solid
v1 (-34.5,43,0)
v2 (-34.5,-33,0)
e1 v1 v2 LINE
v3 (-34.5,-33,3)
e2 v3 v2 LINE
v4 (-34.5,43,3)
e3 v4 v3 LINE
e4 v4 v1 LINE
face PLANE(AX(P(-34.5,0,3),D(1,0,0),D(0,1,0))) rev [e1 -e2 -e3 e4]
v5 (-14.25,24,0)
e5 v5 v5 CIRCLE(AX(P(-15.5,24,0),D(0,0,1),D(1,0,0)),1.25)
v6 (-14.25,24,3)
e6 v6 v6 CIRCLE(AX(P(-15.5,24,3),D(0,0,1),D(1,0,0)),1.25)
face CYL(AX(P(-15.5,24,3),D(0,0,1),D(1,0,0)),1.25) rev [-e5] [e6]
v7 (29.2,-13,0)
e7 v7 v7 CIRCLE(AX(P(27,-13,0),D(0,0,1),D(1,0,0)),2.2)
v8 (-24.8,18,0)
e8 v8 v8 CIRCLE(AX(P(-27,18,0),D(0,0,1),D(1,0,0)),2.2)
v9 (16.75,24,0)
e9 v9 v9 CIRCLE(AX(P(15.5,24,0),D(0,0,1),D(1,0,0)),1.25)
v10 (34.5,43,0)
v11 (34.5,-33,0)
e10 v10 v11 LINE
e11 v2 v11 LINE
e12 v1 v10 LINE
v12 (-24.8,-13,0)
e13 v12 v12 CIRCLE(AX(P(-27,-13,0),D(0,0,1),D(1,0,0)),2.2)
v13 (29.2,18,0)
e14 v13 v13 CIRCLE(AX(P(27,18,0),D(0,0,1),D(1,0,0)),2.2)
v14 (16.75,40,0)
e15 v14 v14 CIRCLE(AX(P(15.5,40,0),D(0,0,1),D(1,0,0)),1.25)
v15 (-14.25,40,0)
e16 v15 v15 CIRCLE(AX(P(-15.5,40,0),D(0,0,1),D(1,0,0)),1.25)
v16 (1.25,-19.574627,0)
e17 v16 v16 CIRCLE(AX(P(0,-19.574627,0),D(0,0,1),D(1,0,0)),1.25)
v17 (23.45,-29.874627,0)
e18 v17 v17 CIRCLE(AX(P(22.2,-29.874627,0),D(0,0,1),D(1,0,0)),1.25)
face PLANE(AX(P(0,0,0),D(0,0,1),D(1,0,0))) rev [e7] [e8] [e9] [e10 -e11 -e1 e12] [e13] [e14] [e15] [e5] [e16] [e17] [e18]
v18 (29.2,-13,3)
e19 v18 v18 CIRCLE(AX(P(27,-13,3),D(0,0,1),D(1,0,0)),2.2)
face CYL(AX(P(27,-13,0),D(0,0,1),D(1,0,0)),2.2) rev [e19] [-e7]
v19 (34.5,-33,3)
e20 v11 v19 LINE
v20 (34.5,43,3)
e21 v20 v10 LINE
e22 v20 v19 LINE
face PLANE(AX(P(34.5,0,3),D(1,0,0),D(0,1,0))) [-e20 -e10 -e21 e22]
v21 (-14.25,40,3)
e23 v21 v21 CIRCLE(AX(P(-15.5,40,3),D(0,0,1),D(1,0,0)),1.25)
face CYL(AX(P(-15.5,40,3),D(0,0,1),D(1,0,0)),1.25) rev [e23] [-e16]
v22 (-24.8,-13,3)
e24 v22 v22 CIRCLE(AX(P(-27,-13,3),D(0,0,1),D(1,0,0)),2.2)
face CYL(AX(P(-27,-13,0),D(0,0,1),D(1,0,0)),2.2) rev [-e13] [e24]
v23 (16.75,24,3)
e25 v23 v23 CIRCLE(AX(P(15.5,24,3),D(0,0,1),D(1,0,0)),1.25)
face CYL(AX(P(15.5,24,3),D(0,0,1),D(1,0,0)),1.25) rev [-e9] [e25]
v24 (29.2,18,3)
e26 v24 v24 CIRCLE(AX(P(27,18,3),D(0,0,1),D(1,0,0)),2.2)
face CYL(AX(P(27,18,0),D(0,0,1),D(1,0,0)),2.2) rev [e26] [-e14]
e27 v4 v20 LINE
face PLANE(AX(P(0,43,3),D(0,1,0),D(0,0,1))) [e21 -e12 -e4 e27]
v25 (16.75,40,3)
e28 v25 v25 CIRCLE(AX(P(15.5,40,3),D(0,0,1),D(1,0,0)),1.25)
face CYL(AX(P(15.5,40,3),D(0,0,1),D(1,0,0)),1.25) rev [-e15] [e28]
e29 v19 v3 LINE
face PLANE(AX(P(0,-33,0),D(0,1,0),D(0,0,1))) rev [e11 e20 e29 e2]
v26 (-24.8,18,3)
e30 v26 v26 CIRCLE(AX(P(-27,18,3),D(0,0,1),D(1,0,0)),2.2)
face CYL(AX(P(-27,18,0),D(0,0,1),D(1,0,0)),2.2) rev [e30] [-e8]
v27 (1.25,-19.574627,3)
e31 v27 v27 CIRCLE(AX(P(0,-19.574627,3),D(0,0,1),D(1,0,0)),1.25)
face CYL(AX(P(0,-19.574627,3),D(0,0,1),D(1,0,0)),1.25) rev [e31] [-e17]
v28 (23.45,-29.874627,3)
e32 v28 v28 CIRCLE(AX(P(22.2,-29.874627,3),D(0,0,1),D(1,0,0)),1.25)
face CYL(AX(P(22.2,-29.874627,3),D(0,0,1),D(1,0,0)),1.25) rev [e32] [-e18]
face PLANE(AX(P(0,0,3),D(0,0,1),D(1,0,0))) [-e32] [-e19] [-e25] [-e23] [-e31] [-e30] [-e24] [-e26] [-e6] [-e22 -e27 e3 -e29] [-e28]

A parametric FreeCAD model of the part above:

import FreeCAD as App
import Part
import Sketcher
from FreeCAD import Vector
Q = App.Units.Quantity

doc = App.newDocument("Part")
params = doc.addObject("Spreadsheet::Sheet", "Params")
for row, (alias, value) in enumerate([
    ("sketch1_width", "69 mm"),
    ("sketch1_height", "86 mm"),
    ("sketch1_width2", "61.5 mm"),
    ("pad1_length", "3 mm"),
    ("sketch2_diameter", "4.4 mm"),
    ("sketch3_diameter", "2.5 mm"),
    ("hole_diameter", "2.5 mm"),
    ("hole_depth", "8.5 mm"),
    ("sketch4_width", "69 mm"),
    ("sketch4_height", "3 mm"),
    ("pocket2_length", "20 mm"),
    ("sketch5_width", "69 mm"),
    ("sketch5_height", "3 mm"),
    ("pad2_length", "10 mm"),
    ("sketch6_diameter", "2.5 mm"),
    ("hole2_diameter", "2.5 mm"),
    ("hole2_depth", "8.5 mm"),
], start=1):
    params.set(f"A{row}", alias)
    params.set(f"B{row}", "=" + value)
    params.setAlias(f"B{row}", alias)

body = doc.addObject("PartDesign::Body", "Body")

sketch1 = body.newObject("Sketcher::SketchObject", "Sketch")
sketch1.AttachmentSupport = (doc.getObject("XY_Plane"), [""])
sketch1.MapMode = "FlatFace"
sketch1.addGeometry(Part.LineSegment(Vector(27, 43, 0), Vector(-34, 43, 0)), False)
sketch1.addGeometry(Part.LineSegment(Vector(-34, 43, 0), Vector(-34, -43, 0)), False)
sketch1.addGeometry(Part.LineSegment(Vector(-34, -43, 0), Vector(34, -43, 0)), False)
sketch1.addGeometry(Part.LineSegment(Vector(34, -43, 0), Vector(34, 43, 0)), False)
sketch1.addGeometry(Part.LineSegment(Vector(34, 43, 0), Vector(27, 43, 0)), False)
sketch1.addConstraint(Sketcher.Constraint("Coincident", 0, 2, 1, 1))
sketch1.addConstraint(Sketcher.Constraint("Coincident", 1, 2, 2, 1))
sketch1.addConstraint(Sketcher.Constraint("Coincident", 2, 2, 3, 1))
sketch1.addConstraint(Sketcher.Constraint("Coincident", 3, 2, 4, 1))
sketch1.addConstraint(Sketcher.Constraint("Coincident", 4, 2, 0, 1))
sketch1.addConstraint(Sketcher.Constraint("Horizontal", 0))
sketch1.addConstraint(Sketcher.Constraint("Vertical", 1))
sketch1.addConstraint(Sketcher.Constraint("Horizontal", 2))
sketch1.addConstraint(Sketcher.Constraint("Vertical", 3))
sketch1.addConstraint(Sketcher.Constraint("Horizontal", 4))
sketch1.addConstraint(Sketcher.Constraint("Symmetric", 0, 2, 2, 2, -1, 1))
sketch1.addConstraint(Sketcher.Constraint("DistanceX", 2, 1, 2, 2, Q("69 mm")))
sketch1.addConstraint(Sketcher.Constraint("DistanceY", 1, 2, 1, 1, Q("86 mm")))
sketch1.addConstraint(Sketcher.Constraint("DistanceX", 0, 2, 0, 1, Q("61.5 mm")))
sketch1.setExpression("Constraints[11]", "Params.sketch1_width")
sketch1.setExpression("Constraints[12]", "Params.sketch1_height")
sketch1.setExpression("Constraints[13]", "Params.sketch1_width2")
pad1 = body.newObject("PartDesign::Pad", "Pad")
pad1.Profile = sketch1
pad1.setExpression("Length", "Params.pad1_length")

sketch2 = body.newObject("Sketcher::SketchObject", "Sketch001")
sketch2.AttachmentSupport = (doc.getObject("XY_Plane"), [""])
sketch2.MapMode = "FlatFace"
sketch2.AttachmentOffset = App.Placement(Vector(0, 0, 3), App.Rotation())
sketch2.addGeometry(Part.Circle(Vector(-27, 18, 0), Vector(0, 0, 1), 2.2), False)
sketch2.addGeometry(Part.Circle(Vector(27, 18, 0), Vector(0, 0, 1), 2.2), False)
sketch2.addGeometry(Part.Circle(Vector(27, -13, 0), Vector(0, 0, 1), 2.2), False)
sketch2.addGeometry(Part.Circle(Vector(-27, -13, 0), Vector(0, 0, 1), 2.2), False)
sketch2.addConstraint(Sketcher.Constraint("Equal", 0, 1))
sketch2.addConstraint(Sketcher.Constraint("Equal", 1, 2))
sketch2.addConstraint(Sketcher.Constraint("Equal", 2, 3))
sketch2.addConstraint(Sketcher.Constraint("Symmetric", 0, 3, 1, 3, -2))
sketch2.addConstraint(Sketcher.Constraint("Symmetric", 2, 3, 3, 3, -2))
sketch2.addConstraint(Sketcher.Constraint("Vertical", 1, 3, 2, 3))
sketch2.addConstraint(Sketcher.Constraint("Diameter", 0, Q("4.4 mm")))
sketch2.addConstraint(Sketcher.Constraint("DistanceX", 0, 3, -1, 1, Q("27 mm")))
sketch2.addConstraint(Sketcher.Constraint("DistanceY", -1, 1, 0, 3, Q("18 mm")))
sketch2.addConstraint(Sketcher.Constraint("DistanceY", 2, 3, -1, 1, Q("13 mm")))
sketch2.setExpression("Constraints[6]", "Params.sketch2_diameter")
pocket1 = body.newObject("PartDesign::Pocket", "Pocket")
pocket1.Profile = sketch2
pocket1.Type = "ThroughAll"

sketch3 = body.newObject("Sketcher::SketchObject", "Sketch002")
sketch3.AttachmentSupport = (doc.getObject("XY_Plane"), [""])
sketch3.MapMode = "FlatFace"
sketch3.AttachmentOffset = App.Placement(Vector(0, 0, 3), App.Rotation())
sketch3.addGeometry(Part.Circle(Vector(-15.5, 24, 0), Vector(0, 0, 1), 1.2), False)
sketch3.addGeometry(Part.Circle(Vector(15.5, 24, 0), Vector(0, 0, 1), 1.2), False)
sketch3.addGeometry(Part.Circle(Vector(-15.5, 40, 0), Vector(0, 0, 1), 1.2), False)
sketch3.addGeometry(Part.Circle(Vector(15.5, 40, 0), Vector(0, 0, 1), 1.2), False)
sketch3.addConstraint(Sketcher.Constraint("Equal", 0, 1))
sketch3.addConstraint(Sketcher.Constraint("Equal", 1, 2))
sketch3.addConstraint(Sketcher.Constraint("Equal", 2, 3))
sketch3.addConstraint(Sketcher.Constraint("Symmetric", 0, 3, 1, 3, -2))
sketch3.addConstraint(Sketcher.Constraint("Symmetric", 2, 3, 3, 3, -2))
sketch3.addConstraint(Sketcher.Constraint("Vertical", 0, 3, 2, 3))
sketch3.addConstraint(Sketcher.Constraint("Diameter", 0, Q("2.5 mm")))
sketch3.addConstraint(Sketcher.Constraint("DistanceY", -1, 1, 0, 3, Q("24 mm")))
sketch3.addConstraint(Sketcher.Constraint("DistanceY", -1, 1, 2, 3, Q("40 mm")))
sketch3.addConstraint(Sketcher.Constraint("DistanceX", 0, 3, 1, 3, Q("31 mm")))
sketch3.setExpression("Constraints[6]", "Params.sketch3_diameter")
doc.recompute()
hole = body.newObject("PartDesign::Hole", "Hole")
hole.Profile = sketch3
hole.ThreadType = "None"
hole.setExpression("Diameter", "Params.hole_diameter")
hole.DepthType = "Dimension"
hole.setExpression("Depth", "Params.hole_depth")
hole.DrillPoint = "Angled"
hole.DrillPointAngle = 118

sketch4 = body.newObject("Sketcher::SketchObject", "Sketch003")
sketch4.AttachmentSupport = (doc.getObject("XZ_Plane"), [""])
sketch4.MapMode = "FlatFace"
sketch4.AttachmentOffset = App.Placement(Vector(0, 0, 43), App.Rotation())
sketch4.addGeometry(Part.LineSegment(Vector(34.5, 0, 0), Vector(34.5, 3, 0)), False)
sketch4.addGeometry(Part.LineSegment(Vector(34.5, 3, 0), Vector(-34.5, 3, 0)), False)
sketch4.addGeometry(Part.LineSegment(Vector(-34.5, 3, 0), Vector(-34.5, 0, 0)), False)
sketch4.addGeometry(Part.LineSegment(Vector(-34.5, 0, 0), Vector(34.5, 0, 0)), False)
sketch4.addConstraint(Sketcher.Constraint("Coincident", 0, 2, 1, 1))
sketch4.addConstraint(Sketcher.Constraint("Coincident", 1, 2, 2, 1))
sketch4.addConstraint(Sketcher.Constraint("Coincident", 2, 2, 3, 1))
sketch4.addConstraint(Sketcher.Constraint("Coincident", 3, 2, 0, 1))
sketch4.addConstraint(Sketcher.Constraint("Vertical", 0))
sketch4.addConstraint(Sketcher.Constraint("Horizontal", 1))
sketch4.addConstraint(Sketcher.Constraint("Vertical", 2))
sketch4.addConstraint(Sketcher.Constraint("Horizontal", 3))
sketch4.addConstraint(Sketcher.Constraint("Symmetric", 2, 2, 3, 2, -1, 1))
sketch4.addConstraint(Sketcher.Constraint("DistanceX", 1, 2, 1, 1, Q("69 mm")))
sketch4.addConstraint(Sketcher.Constraint("DistanceY", 0, 1, 0, 2, Q("3 mm")))
sketch4.setExpression("Constraints[9]", "Params.sketch4_width")
sketch4.setExpression("Constraints[10]", "Params.sketch4_height")
pocket2 = body.newObject("PartDesign::Pocket", "Pocket001")
pocket2.Profile = sketch4
pocket2.setExpression("Length", "Params.pocket2_length")

sketch5 = body.newObject("Sketcher::SketchObject", "Sketch004")
sketch5.AttachmentSupport = (doc.getObject("XZ_Plane"), [""])
sketch5.MapMode = "FlatFace"
sketch5.AttachmentOffset = App.Placement(Vector(0, 0, 23), App.Rotation())
sketch5.addGeometry(Part.LineSegment(Vector(34.5, 0, 0), Vector(34.5, 3, 0)), False)
sketch5.addGeometry(Part.LineSegment(Vector(34.5, 3, 0), Vector(-34.5, 3, 0)), False)
sketch5.addGeometry(Part.LineSegment(Vector(-34.5, 3, 0), Vector(-34.5, 0, 0)), False)
sketch5.addGeometry(Part.LineSegment(Vector(-34.5, 0, 0), Vector(34.5, 0, 0)), False)
sketch5.addConstraint(Sketcher.Constraint("Coincident", 0, 2, 1, 1))
sketch5.addConstraint(Sketcher.Constraint("Coincident", 1, 2, 2, 1))
sketch5.addConstraint(Sketcher.Constraint("Coincident", 2, 2, 3, 1))
sketch5.addConstraint(Sketcher.Constraint("Coincident", 3, 2, 0, 1))
sketch5.addConstraint(Sketcher.Constraint("Vertical", 0))
sketch5.addConstraint(Sketcher.Constraint("Horizontal", 1))
sketch5.addConstraint(Sketcher.Constraint("Vertical", 2))
sketch5.addConstraint(Sketcher.Constraint("Horizontal", 3))
sketch5.addConstraint(Sketcher.Constraint("Symmetric", 2, 2, 3, 2, -1, 1))
sketch5.addConstraint(Sketcher.Constraint("DistanceX", 1, 2, 1, 1, Q("69 mm")))
sketch5.addConstraint(Sketcher.Constraint("DistanceY", 0, 1, 0, 2, Q("3 mm")))
sketch5.setExpression("Constraints[9]", "Params.sketch5_width")
sketch5.setExpression("Constraints[10]", "Params.sketch5_height")
pad2 = body.newObject("PartDesign::Pad", "Pad001")
pad2.Profile = sketch5
pad2.setExpression("Length", "Params.pad2_length")

sketch6 = body.newObject("Sketcher::SketchObject", "Sketch005")
sketch6.AttachmentSupport = (doc.getObject("XY_Plane"), [""])
sketch6.MapMode = "FlatFace"
sketch6.AttachmentOffset = App.Placement(Vector(0, 0, 3), App.Rotation())
sketch6.addGeometry(Part.Circle(Vector(0, -19.6, 0), Vector(0, 0, 1), 1.2), False)
sketch6.addGeometry(Part.Circle(Vector(22.2, -29.9, 0), Vector(0, 0, 1), 1.2), False)
sketch6.addConstraint(Sketcher.Constraint("Equal", 0, 1))
sketch6.addConstraint(Sketcher.Constraint("PointOnObject", 0, 3, -2))
sketch6.addConstraint(Sketcher.Constraint("Diameter", 0, Q("2.5 mm")))
sketch6.addConstraint(Sketcher.Constraint("DistanceX", -1, 1, 1, 3, Q("22.2 mm")))
sketch6.addConstraint(Sketcher.Constraint("DistanceY", 1, 3, 0, 3, Q("10.3 mm")))
sketch6.addConstraint(Sketcher.Constraint("DistanceY", 0, 3, -1, 1, Q("19.574627 mm")))
sketch6.setExpression("Constraints[2]", "Params.sketch6_diameter")
doc.recompute()
hole2 = body.newObject("PartDesign::Hole", "Hole001")
hole2.Profile = sketch6
hole2.ThreadType = "None"
hole2.setExpression("Diameter", "Params.hole2_diameter")
hole2.DepthType = "Dimension"
hole2.setExpression("Depth", "Params.hole2_depth")
hole2.DrillPoint = "Angled"
hole2.DrillPointAngle = 118

doc.recompute()
